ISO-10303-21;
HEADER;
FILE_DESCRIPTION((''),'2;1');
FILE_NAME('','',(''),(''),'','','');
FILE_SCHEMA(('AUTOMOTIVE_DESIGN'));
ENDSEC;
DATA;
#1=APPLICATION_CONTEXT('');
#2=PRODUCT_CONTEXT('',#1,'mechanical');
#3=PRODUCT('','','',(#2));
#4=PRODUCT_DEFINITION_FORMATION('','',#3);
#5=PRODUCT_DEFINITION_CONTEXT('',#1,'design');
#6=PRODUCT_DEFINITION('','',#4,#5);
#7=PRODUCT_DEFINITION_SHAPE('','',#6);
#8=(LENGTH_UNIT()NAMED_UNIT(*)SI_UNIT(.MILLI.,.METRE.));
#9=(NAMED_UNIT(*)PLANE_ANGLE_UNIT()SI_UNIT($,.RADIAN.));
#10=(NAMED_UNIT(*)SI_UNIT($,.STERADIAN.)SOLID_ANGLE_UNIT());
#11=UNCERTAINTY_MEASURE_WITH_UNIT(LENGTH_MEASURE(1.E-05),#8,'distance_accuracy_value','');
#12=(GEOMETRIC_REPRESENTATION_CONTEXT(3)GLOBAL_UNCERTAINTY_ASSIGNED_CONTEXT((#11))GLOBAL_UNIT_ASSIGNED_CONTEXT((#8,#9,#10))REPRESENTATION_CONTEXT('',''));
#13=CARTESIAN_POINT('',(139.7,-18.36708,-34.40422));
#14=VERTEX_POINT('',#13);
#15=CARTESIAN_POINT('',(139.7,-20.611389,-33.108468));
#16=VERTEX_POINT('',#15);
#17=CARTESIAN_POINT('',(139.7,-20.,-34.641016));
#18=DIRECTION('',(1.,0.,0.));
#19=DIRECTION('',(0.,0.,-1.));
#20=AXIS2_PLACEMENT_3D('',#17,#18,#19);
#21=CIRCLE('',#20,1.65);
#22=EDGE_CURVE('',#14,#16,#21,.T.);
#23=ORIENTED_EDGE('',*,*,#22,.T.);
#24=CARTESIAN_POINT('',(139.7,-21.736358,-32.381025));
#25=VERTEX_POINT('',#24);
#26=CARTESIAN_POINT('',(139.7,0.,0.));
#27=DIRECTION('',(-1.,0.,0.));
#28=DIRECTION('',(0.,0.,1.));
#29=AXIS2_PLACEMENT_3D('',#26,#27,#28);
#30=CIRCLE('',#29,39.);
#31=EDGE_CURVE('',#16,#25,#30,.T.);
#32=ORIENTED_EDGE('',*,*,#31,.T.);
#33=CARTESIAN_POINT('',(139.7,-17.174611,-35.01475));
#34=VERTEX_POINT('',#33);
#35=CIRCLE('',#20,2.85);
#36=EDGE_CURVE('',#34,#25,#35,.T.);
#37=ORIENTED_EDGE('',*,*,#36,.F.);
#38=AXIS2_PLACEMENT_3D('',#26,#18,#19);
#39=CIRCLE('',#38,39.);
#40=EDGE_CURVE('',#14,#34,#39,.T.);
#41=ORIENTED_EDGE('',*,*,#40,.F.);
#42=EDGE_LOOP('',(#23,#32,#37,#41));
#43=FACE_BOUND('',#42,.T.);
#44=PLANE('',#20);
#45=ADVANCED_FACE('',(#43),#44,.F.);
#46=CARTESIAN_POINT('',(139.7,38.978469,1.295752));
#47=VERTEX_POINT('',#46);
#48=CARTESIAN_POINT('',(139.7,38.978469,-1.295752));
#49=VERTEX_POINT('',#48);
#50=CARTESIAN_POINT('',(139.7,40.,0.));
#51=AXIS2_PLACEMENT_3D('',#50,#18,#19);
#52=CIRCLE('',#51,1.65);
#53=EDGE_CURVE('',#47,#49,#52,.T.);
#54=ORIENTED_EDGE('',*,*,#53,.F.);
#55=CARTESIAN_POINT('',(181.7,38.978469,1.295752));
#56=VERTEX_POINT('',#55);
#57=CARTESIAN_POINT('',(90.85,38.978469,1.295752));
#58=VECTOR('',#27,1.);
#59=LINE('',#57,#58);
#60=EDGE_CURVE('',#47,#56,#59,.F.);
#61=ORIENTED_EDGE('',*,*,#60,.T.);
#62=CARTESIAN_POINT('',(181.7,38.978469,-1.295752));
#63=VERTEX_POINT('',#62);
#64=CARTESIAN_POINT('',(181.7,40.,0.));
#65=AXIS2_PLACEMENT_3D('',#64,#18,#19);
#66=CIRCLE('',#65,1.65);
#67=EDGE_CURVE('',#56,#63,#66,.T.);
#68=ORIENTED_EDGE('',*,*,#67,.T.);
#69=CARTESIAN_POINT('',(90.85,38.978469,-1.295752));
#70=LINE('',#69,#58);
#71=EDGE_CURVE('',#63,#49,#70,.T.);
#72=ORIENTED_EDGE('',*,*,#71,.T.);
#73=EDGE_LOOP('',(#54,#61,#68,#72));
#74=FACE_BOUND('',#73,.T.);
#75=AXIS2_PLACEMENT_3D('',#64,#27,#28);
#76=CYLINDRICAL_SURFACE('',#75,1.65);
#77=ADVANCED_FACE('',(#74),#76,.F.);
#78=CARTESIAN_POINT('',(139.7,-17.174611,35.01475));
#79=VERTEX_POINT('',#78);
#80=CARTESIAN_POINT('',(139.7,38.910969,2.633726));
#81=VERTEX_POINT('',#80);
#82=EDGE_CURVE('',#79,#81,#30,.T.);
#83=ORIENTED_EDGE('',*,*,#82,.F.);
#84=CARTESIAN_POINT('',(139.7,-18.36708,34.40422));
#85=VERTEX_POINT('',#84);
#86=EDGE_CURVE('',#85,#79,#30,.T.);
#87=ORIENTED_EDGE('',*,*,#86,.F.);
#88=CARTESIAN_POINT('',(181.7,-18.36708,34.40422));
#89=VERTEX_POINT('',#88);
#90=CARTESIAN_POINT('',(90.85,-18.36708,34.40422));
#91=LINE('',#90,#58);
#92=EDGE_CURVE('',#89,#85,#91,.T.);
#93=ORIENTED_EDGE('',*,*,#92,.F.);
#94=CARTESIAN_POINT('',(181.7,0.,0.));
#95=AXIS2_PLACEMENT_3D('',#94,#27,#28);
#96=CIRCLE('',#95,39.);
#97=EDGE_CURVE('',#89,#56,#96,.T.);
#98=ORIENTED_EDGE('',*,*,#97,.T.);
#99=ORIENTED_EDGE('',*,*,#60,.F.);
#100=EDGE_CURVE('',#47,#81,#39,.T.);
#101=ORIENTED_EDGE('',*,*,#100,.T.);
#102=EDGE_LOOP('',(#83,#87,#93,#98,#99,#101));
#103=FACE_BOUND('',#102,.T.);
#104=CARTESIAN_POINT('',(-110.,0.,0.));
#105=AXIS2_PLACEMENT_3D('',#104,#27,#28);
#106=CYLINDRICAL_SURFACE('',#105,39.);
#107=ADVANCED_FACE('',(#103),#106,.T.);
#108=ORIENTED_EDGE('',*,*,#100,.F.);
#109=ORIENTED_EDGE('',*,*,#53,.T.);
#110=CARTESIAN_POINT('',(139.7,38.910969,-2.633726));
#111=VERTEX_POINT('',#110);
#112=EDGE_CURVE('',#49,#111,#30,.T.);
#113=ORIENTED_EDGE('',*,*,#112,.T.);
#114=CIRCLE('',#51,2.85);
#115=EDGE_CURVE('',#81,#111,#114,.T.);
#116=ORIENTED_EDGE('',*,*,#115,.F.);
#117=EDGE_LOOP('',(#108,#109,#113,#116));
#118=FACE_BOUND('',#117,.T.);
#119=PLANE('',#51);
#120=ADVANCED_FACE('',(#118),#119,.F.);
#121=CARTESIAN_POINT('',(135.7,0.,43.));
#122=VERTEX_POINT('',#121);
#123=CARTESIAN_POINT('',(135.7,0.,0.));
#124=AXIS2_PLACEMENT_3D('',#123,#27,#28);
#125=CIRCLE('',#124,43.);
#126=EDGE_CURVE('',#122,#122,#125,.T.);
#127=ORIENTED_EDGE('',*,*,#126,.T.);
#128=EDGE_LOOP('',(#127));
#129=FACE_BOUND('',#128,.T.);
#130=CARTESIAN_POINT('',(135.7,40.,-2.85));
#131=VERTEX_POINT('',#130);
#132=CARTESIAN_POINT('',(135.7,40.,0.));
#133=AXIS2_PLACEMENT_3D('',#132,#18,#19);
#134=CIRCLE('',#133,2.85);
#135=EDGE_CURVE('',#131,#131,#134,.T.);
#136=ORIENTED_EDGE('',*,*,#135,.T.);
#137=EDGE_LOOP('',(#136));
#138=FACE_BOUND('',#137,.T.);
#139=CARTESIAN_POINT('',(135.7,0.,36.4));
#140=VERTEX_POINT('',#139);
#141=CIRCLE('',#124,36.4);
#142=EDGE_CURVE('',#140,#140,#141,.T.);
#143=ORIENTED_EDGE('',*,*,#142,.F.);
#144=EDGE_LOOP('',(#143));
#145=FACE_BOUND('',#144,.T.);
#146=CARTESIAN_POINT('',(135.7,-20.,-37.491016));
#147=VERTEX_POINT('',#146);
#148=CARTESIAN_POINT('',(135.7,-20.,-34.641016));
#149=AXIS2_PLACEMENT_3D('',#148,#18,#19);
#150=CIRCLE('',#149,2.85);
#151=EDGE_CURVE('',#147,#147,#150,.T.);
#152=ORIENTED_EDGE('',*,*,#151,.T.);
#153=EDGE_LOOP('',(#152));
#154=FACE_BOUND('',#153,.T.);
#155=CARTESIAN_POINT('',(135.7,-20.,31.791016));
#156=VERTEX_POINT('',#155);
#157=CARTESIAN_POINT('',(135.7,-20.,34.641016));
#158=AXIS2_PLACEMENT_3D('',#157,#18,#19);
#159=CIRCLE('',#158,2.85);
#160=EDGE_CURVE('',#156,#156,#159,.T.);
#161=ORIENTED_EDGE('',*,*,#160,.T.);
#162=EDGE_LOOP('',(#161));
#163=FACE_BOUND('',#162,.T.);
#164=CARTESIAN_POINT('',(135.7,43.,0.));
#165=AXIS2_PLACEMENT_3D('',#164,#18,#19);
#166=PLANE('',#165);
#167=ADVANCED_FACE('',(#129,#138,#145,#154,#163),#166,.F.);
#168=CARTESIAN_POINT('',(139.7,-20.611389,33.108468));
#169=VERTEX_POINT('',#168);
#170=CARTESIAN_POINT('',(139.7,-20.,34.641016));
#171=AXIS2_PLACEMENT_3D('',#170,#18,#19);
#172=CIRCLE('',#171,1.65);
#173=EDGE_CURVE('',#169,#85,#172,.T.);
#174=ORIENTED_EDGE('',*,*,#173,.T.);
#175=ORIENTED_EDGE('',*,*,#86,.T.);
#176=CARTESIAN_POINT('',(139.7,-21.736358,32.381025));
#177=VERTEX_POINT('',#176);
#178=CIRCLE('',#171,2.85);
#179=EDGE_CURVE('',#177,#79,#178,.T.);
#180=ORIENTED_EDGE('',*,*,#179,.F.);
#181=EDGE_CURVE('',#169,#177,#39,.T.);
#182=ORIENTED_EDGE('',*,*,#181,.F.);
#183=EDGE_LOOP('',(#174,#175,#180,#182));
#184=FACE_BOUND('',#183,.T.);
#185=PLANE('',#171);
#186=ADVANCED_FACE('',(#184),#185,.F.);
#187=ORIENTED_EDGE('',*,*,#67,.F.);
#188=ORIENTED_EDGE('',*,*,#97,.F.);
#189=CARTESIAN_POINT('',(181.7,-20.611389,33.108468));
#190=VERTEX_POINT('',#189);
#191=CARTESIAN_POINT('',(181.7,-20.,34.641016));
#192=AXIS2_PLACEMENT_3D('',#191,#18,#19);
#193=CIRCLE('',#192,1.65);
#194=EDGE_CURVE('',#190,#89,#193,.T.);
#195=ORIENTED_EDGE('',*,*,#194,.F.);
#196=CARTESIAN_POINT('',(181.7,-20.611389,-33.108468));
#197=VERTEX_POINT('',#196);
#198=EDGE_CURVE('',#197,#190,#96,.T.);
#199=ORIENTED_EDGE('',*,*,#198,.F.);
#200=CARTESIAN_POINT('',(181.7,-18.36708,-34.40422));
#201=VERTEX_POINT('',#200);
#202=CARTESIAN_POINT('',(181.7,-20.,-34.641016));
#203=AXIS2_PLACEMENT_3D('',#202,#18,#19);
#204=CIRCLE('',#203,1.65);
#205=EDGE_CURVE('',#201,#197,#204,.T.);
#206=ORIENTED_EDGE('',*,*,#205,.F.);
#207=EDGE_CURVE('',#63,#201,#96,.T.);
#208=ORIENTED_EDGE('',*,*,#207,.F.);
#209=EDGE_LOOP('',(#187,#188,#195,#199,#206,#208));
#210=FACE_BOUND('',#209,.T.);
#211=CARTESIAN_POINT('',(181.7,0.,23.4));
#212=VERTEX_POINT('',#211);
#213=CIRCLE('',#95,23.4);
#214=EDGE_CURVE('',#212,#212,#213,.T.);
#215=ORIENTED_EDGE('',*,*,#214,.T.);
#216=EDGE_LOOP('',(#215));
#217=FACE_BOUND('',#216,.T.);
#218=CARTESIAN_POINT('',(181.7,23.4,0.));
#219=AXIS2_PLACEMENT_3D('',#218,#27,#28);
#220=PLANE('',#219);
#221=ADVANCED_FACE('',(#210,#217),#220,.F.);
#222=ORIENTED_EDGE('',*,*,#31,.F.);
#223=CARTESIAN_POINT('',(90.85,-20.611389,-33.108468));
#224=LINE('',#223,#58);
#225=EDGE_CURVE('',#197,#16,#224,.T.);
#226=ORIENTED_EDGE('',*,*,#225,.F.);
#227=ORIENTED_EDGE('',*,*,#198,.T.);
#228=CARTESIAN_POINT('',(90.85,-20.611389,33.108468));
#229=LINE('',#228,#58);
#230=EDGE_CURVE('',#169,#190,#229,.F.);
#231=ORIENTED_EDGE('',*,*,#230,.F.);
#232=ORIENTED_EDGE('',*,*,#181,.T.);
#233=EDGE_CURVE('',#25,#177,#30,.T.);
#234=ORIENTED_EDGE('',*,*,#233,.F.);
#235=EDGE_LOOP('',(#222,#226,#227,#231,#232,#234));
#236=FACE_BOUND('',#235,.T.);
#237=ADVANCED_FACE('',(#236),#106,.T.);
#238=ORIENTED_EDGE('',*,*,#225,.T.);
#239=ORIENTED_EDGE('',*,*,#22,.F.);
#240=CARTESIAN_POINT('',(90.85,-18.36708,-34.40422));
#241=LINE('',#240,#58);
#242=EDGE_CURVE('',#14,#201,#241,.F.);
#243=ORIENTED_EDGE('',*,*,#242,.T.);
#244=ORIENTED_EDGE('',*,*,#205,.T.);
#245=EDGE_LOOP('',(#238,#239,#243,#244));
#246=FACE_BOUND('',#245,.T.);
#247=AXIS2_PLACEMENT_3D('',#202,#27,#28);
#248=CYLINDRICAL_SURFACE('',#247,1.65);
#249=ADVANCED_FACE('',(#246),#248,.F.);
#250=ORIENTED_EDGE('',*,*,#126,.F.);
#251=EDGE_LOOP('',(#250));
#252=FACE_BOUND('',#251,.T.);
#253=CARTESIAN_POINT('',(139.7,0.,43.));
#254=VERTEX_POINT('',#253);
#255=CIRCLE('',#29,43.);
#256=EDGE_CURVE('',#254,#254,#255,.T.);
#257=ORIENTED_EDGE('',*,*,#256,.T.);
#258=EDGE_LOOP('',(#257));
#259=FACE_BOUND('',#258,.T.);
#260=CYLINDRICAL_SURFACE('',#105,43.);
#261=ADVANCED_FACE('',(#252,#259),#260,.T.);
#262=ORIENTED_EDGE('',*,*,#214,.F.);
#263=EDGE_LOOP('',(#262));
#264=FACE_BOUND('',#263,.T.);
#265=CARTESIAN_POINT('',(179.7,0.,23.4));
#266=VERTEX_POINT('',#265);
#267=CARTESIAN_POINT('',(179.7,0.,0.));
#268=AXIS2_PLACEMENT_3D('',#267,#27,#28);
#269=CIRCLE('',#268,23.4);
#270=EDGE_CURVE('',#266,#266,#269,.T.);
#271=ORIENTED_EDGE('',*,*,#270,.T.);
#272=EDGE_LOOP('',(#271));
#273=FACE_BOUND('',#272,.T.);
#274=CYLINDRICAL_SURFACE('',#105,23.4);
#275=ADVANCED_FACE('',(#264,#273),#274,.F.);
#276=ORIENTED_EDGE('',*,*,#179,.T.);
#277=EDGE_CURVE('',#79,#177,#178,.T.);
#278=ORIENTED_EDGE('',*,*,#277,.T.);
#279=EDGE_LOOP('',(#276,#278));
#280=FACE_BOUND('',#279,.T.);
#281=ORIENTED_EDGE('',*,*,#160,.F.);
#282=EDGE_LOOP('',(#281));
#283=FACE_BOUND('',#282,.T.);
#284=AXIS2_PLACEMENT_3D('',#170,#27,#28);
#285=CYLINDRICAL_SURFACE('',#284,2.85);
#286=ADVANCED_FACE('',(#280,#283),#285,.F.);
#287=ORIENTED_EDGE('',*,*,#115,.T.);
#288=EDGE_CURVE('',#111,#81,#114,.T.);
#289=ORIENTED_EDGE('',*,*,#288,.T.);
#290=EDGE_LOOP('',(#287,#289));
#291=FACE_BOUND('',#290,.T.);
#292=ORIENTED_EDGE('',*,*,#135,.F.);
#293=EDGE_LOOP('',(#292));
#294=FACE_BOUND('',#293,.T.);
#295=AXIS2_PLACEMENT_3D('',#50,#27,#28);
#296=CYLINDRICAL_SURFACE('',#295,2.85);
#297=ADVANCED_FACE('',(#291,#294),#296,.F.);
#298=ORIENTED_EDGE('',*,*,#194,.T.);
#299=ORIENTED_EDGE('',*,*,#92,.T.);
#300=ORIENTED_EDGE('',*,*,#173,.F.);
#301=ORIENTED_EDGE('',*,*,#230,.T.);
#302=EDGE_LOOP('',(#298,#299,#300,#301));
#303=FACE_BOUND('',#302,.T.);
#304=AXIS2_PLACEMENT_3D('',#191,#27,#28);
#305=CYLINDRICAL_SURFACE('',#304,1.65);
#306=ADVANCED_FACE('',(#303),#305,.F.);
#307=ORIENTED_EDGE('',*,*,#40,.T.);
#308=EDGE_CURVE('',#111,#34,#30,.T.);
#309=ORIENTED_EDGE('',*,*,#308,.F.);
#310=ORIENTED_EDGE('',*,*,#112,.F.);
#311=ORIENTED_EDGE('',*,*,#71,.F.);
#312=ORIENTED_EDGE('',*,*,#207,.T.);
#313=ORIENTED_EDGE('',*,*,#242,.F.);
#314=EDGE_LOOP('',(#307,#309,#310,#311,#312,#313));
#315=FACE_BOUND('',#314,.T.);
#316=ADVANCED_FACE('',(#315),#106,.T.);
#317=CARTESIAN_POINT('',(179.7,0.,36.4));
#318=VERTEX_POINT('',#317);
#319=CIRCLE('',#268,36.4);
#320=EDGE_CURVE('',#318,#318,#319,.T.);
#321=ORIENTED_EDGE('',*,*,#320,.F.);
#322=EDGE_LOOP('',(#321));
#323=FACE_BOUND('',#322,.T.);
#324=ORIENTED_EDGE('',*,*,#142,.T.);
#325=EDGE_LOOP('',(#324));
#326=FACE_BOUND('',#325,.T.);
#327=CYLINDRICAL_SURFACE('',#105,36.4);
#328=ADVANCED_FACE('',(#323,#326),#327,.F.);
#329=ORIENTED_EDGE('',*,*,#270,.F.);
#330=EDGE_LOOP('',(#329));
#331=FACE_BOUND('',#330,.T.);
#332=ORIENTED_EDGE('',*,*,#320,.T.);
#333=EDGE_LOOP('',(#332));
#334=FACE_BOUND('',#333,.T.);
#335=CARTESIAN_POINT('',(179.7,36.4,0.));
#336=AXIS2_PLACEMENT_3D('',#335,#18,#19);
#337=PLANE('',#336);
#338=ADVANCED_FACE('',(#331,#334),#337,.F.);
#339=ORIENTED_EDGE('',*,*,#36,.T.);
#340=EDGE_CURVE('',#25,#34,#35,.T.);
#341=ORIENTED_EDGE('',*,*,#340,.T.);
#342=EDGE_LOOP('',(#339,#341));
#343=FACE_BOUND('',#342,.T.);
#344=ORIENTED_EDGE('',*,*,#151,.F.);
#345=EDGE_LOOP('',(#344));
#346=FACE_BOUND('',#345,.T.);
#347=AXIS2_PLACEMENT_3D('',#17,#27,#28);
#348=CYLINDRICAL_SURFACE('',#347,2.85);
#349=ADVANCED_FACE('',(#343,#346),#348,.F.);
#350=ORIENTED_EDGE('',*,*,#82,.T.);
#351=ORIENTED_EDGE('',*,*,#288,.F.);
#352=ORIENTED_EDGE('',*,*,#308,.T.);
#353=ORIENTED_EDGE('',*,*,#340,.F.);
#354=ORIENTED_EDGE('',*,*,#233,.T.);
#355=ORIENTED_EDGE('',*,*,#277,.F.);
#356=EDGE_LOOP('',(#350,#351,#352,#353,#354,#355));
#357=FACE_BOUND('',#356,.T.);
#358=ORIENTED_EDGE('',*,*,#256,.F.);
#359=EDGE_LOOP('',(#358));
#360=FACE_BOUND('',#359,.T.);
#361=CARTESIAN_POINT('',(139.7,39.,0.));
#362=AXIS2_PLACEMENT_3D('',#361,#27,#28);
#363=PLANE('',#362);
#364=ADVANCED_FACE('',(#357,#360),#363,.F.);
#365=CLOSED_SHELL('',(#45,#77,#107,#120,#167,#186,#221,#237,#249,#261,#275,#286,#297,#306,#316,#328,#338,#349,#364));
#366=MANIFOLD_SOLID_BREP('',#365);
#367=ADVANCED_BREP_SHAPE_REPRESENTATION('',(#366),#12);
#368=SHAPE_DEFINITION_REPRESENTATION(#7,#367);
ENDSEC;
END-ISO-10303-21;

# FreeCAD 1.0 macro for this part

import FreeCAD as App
import Part
import Sketcher

V = App.Vector
Q = App.Units.Quantity


def add_polygon(sketch, points):
    """Adds a closed chain of lines whose ends are joined by coincident constraints."""
    first, n = sketch.GeometryCount, len(points)
    for a, b in zip(points, points[1:] + points[:1]):
        sketch.addGeometry(Part.LineSegment(App.Vector(*a, 0), App.Vector(*b, 0)), False)
    for i in range(n):
        sketch.addConstraint(Sketcher.Constraint("Coincident", first + i, 2, first + (i + 1) % n, 1))

doc = App.newDocument("Part")
body = doc.addObject("PartDesign::Body", "Body")

# Sketch on XY plane
sketch1 = body.newObject("Sketcher::SketchObject", "Sketch")
sketch1.AttachmentSupport = (doc.getObject("XY_Plane"), [""])
sketch1.MapMode = "FlatFace"
add_polygon(sketch1, [(135.7, 36.4), (179.7, 36.4), (179.7, 23.4), (181.7, 23.4), (181.7, 39), (139.7, 39), (139.7, 43), (135.7, 43)])  # lines 0-7
sketch1.addConstraint(Sketcher.Constraint("Horizontal", 0))
sketch1.addConstraint(Sketcher.Constraint("Vertical", 1))
sketch1.addConstraint(Sketcher.Constraint("Horizontal", 2))
sketch1.addConstraint(Sketcher.Constraint("Vertical", 3))
sketch1.addConstraint(Sketcher.Constraint("Horizontal", 4))
sketch1.addConstraint(Sketcher.Constraint("Vertical", 5))
sketch1.addConstraint(Sketcher.Constraint("Horizontal", 6))
sketch1.addConstraint(Sketcher.Constraint("Vertical", 7))
sketch1.addConstraint(Sketcher.Constraint("Equal", 6, 5))
sketch1.addConstraint(Sketcher.Constraint("DistanceX", 0, 1, 0, 2, Q("44 mm")))
sketch1.addConstraint(Sketcher.Constraint("DistanceX", 2, 1, 2, 2, Q("2 mm")))
sketch1.addConstraint(Sketcher.Constraint("DistanceX", 4, 2, 4, 1, Q("42 mm")))
sketch1.addConstraint(Sketcher.Constraint("DistanceY", 1, 2, 1, 1, Q("13 mm")))
sketch1.addConstraint(Sketcher.Constraint("DistanceY", 3, 1, 3, 2, Q("15.6 mm")))
sketch1.addConstraint(Sketcher.Constraint("DistanceY", -1, 1, 3, 2, Q("39 mm")))
sketch1.addConstraint(Sketcher.Constraint("DistanceX", -1, 1, 0, 2, Q("179.7 mm")))
revolution = body.newObject("PartDesign::Revolution", "Revolution")
revolution.Profile = sketch1
revolution.ReferenceAxis = (sketch1, ["H_Axis"])
revolution.Angle = 360

# Sketch on YZ plane
sketch2 = body.newObject("Sketcher::SketchObject", "Sketch001")
sketch2.AttachmentSupport = (doc.getObject("YZ_Plane"), [""])
sketch2.MapMode = "FlatFace"
sketch2.addGeometry(Part.Circle(V(40, 0, 0), V(0, 0, 1), 1.65), False)
sketch2.addGeometry(Part.Circle(V(-20, 34.641016, 0), V(0, 0, 1), 1.65), False)
sketch2.addGeometry(Part.Circle(V(-20, -34.641016, 0), V(0, 0, 1), 1.65), False)
sketch2.addConstraint(Sketcher.Constraint("Equal", 0, 1))
sketch2.addConstraint(Sketcher.Constraint("Equal", 1, 2))
sketch2.addConstraint(Sketcher.Constraint("Symmetric", 1, 3, 2, 3, -1))
sketch2.addConstraint(Sketcher.Constraint("PointOnObject", 0, 3, -1))
sketch2.addConstraint(Sketcher.Constraint("Diameter", 0, Q("3.3 mm")))
sketch2.addConstraint(Sketcher.Constraint("DistanceX", -1, 1, 0, 3, Q("40 mm")))
sketch2.addConstraint(Sketcher.Constraint("DistanceX", 1, 3, -1, 1, Q("20 mm")))
sketch2.addConstraint(Sketcher.Constraint("DistanceY", -1, 1, 1, 3, Q("34.641016 mm")))
pocket1 = body.newObject("PartDesign::Pocket", "Pocket")
pocket1.Profile = sketch2
pocket1.Type = "ThroughAll"
pocket1.Midplane = True

# Sketch on YZ plane
sketch3 = body.newObject("Sketcher::SketchObject", "Sketch002")
sketch3.AttachmentSupport = (doc.getObject("YZ_Plane"), [""])
sketch3.MapMode = "FlatFace"
sketch3.AttachmentOffset = App.Placement(V(0, 0, 135.7), App.Rotation())
sketch3.addGeometry(Part.Circle(V(40, 0, 0), V(0, 0, 1), 2.85), False)
sketch3.addGeometry(Part.Circle(V(-20, 34.641016, 0), V(0, 0, 1), 2.85), False)
sketch3.addGeometry(Part.Circle(V(-20, -34.641016, 0), V(0, 0, 1), 2.85), False)
sketch3.addConstraint(Sketcher.Constraint("Equal", 0, 1))
sketch3.addConstraint(Sketcher.Constraint("Equal", 1, 2))
sketch3.addConstraint(Sketcher.Constraint("Symmetric", 1, 3, 2, 3, -1))
sketch3.addConstraint(Sketcher.Constraint("PointOnObject", 0, 3, -1))
sketch3.addConstraint(Sketcher.Constraint("Diameter", 0, Q("5.7 mm")))
sketch3.addConstraint(Sketcher.Constraint("DistanceX", -1, 1, 0, 3, Q("40 mm")))
sketch3.addConstraint(Sketcher.Constraint("DistanceX", 1, 3, -1, 1, Q("20 mm")))
sketch3.addConstraint(Sketcher.Constraint("DistanceY", -1, 1, 1, 3, Q("34.641016 mm")))
pocket2 = body.newObject("PartDesign::Pocket", "Pocket001")
pocket2.Profile = sketch3
pocket2.Length = 4
pocket2.Reversed = True

doc.recompute()
